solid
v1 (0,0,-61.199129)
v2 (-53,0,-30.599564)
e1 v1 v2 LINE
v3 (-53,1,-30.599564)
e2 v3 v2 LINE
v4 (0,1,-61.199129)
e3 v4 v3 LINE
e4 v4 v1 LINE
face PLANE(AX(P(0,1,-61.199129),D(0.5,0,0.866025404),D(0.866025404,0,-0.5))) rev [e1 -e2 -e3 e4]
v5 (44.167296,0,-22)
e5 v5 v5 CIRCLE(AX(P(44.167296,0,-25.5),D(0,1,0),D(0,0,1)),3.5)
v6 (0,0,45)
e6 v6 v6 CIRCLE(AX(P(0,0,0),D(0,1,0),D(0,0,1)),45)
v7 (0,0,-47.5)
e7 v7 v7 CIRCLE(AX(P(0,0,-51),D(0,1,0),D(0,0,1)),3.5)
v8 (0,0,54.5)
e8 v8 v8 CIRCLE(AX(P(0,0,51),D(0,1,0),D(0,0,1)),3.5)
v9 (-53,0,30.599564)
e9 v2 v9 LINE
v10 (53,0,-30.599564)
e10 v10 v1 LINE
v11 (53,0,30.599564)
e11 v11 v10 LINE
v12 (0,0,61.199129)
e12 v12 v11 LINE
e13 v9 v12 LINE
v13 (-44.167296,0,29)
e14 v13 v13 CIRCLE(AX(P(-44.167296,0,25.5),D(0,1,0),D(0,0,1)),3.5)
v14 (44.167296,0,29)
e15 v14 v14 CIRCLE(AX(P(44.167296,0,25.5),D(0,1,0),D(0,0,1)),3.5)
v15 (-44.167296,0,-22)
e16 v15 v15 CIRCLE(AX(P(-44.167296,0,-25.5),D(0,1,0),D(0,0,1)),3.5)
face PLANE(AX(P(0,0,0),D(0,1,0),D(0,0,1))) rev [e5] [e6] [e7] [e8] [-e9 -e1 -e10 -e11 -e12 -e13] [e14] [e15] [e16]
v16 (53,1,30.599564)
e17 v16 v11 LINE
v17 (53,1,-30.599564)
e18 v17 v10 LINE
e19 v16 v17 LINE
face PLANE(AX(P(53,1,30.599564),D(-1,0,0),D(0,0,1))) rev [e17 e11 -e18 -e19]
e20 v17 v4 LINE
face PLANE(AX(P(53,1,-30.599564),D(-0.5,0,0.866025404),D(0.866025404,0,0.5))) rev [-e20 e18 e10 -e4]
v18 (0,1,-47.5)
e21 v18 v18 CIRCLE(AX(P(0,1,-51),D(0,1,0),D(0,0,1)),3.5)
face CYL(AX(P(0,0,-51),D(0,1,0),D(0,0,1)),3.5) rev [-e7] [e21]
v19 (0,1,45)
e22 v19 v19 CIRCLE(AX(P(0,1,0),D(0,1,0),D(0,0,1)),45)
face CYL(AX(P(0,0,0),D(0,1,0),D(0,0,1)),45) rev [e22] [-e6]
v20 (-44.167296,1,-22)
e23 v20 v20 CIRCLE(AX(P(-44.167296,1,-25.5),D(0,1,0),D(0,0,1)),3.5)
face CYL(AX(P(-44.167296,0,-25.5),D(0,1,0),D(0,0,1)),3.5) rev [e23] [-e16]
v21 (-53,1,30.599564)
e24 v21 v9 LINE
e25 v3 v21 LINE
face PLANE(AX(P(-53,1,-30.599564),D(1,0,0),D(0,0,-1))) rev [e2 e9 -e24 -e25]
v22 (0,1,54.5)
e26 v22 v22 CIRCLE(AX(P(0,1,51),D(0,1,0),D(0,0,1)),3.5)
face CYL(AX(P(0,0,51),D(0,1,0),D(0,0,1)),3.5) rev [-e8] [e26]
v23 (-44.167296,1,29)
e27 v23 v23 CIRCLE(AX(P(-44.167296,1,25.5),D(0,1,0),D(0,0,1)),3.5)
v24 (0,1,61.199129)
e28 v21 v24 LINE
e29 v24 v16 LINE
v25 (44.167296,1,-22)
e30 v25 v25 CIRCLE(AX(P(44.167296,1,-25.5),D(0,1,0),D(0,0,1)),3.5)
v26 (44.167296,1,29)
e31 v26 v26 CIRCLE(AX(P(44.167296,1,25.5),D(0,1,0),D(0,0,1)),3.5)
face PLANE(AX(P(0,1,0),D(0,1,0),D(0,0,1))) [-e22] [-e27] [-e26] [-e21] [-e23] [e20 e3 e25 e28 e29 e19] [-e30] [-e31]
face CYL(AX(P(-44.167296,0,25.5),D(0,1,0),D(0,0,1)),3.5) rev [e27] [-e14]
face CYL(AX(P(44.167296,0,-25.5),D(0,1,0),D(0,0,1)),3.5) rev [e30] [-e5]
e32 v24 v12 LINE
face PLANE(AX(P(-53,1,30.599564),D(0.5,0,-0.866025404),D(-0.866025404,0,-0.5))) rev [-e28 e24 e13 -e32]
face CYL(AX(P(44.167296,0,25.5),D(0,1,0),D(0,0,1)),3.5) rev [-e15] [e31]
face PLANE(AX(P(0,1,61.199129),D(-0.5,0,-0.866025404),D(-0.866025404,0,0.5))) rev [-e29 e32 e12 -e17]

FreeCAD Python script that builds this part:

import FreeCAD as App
import Part
import Sketcher

V = App.Vector
Q = App.Units.Quantity

doc = App.newDocument("Part")
params = doc.addObject("Spreadsheet::Sheet", "Params")
for row, (alias, value) in enumerate([
    ("pad1_length", "1 mm"),
    ("sketch2_diameter", "90 mm"),
    ("sketch2_diameter2", "7 mm"),
], start=1):
    params.set(f"A{row}", alias)
    params.set(f"B{row}", "=" + value)
    params.setAlias(f"B{row}", alias)

body = doc.addObject("PartDesign::Body", "Body")

sketch1 = body.newObject("Sketcher::SketchObject", "Sketch")
sketch1.AttachmentSupport = (doc.getObject("XZ_Plane"), [""])
sketch1.MapMode = "FlatFace"
sketch1.addGeometry([
    Part.LineSegment(V(0, -61.199129, 0), V(-53, -30.599564, 0)),
    Part.LineSegment(V(-53, -30.599564, 0), V(-53, 30.599564, 0)),
    Part.LineSegment(V(-53, 30.599564, 0), V(0, 61.199129, 0)),
    Part.LineSegment(V(0, 61.199129, 0), V(53, 30.599564, 0)),
    Part.LineSegment(V(53, 30.599564, 0), V(53, -30.599564, 0)),
    Part.LineSegment(V(53, -30.599564, 0), V(0, -61.199129, 0)),
], False)
sketch1.addConstraint([
    Sketcher.Constraint("Coincident", 0, 2, 1, 1),
    Sketcher.Constraint("Coincident", 1, 2, 2, 1),
    Sketcher.Constraint("Coincident", 2, 2, 3, 1),
    Sketcher.Constraint("Coincident", 3, 2, 4, 1),
    Sketcher.Constraint("Coincident", 4, 2, 5, 1),
    Sketcher.Constraint("Coincident", 5, 2, 0, 1),
    Sketcher.Constraint("Vertical", 1),
    Sketcher.Constraint("Vertical", 4),
    Sketcher.Constraint("Symmetric", 0, 2, 3, 2, -1, 1),
    Sketcher.Constraint("Symmetric", 2, 2, 5, 2, -1, 1),
    Sketcher.Constraint("PointOnObject", 2, 2, -2),
    Sketcher.Constraint("Parallel", 2, 5),
    Sketcher.Constraint("Horizontal", 1, 2, 3, 2),
    Sketcher.Constraint("Angle", 0, Q("150 deg")),
    Sketcher.Constraint("DistanceX", 0, 2, -1, 1, 53.0),
    Sketcher.Constraint("DistanceY", 1, 1, 1, 2, 61.199129),
])
pad1 = body.newObject("PartDesign::Pad", "Pad")
pad1.Profile = sketch1
pad1.setExpression("Length", "Params.pad1_length")
pad1.Reversed = True

sketch2 = body.newObject("Sketcher::SketchObject", "Sketch001")
sketch2.AttachmentSupport = (doc.getObject("XZ_Plane"), [""])
sketch2.MapMode = "FlatFace"
sketch2.AttachmentOffset = App.Placement(V(0, 0, -1), App.Rotation())
sketch2.addGeometry([
    Part.Circle(V(0, 0, 0), V(0, 0, 1), 45),
    Part.Circle(V(0, -51, 0), V(0, 0, 1), 3.5),
    Part.Circle(V(44.167296, -25.5, 0), V(0, 0, 1), 3.5),
    Part.Circle(V(44.167296, 25.5, 0), V(0, 0, 1), 3.5),
    Part.Circle(V(0, 51, 0), V(0, 0, 1), 3.5),
    Part.Circle(V(-44.167296, 25.5, 0), V(0, 0, 1), 3.5),
    Part.Circle(V(-44.167296, -25.5, 0), V(0, 0, 1), 3.5),
], False)
sketch2.addConstraint([
    Sketcher.Constraint("Coincident", 0, 3, -1, 1),
    Sketcher.Constraint("Equal", 1, 2),
    Sketcher.Constraint("Equal", 2, 3),
    Sketcher.Constraint("Equal", 3, 4),
    Sketcher.Constraint("Equal", 4, 5),
    Sketcher.Constraint("Equal", 5, 6),
    Sketcher.Constraint("Symmetric", 1, 3, 4, 3, -1, 1),
    Sketcher.Constraint("Symmetric", 2, 3, 5, 3, -1, 1),
    Sketcher.Constraint("Symmetric", 3, 3, 6, 3, -1, 1),
    Sketcher.Constraint("Symmetric", 3, 3, 5, 3, -2),
    Sketcher.Constraint("PointOnObject", 1, 3, -2),
    Sketcher.Constraint("Diameter", 0, 90.0),
    Sketcher.Constraint("Diameter", 1, 7.0),
    Sketcher.Constraint("DistanceY", 1, 3, -1, 1, 51.0),
    Sketcher.Constraint("DistanceY", 2, 3, 3, 3, 51.0),
    Sketcher.Constraint("DistanceX", 5, 3, 3, 3, 88.334591),
])
sketch2.setExpression("Constraints[11]", "Params.sketch2_diameter")
sketch2.setExpression("Constraints[12]", "Params.sketch2_diameter2")
pocket1 = body.newObject("PartDesign::Pocket", "Pocket")
pocket1.Profile = sketch2
pocket1.Type = "ThroughAll"
pocket1.Reversed = True

doc.recompute()
